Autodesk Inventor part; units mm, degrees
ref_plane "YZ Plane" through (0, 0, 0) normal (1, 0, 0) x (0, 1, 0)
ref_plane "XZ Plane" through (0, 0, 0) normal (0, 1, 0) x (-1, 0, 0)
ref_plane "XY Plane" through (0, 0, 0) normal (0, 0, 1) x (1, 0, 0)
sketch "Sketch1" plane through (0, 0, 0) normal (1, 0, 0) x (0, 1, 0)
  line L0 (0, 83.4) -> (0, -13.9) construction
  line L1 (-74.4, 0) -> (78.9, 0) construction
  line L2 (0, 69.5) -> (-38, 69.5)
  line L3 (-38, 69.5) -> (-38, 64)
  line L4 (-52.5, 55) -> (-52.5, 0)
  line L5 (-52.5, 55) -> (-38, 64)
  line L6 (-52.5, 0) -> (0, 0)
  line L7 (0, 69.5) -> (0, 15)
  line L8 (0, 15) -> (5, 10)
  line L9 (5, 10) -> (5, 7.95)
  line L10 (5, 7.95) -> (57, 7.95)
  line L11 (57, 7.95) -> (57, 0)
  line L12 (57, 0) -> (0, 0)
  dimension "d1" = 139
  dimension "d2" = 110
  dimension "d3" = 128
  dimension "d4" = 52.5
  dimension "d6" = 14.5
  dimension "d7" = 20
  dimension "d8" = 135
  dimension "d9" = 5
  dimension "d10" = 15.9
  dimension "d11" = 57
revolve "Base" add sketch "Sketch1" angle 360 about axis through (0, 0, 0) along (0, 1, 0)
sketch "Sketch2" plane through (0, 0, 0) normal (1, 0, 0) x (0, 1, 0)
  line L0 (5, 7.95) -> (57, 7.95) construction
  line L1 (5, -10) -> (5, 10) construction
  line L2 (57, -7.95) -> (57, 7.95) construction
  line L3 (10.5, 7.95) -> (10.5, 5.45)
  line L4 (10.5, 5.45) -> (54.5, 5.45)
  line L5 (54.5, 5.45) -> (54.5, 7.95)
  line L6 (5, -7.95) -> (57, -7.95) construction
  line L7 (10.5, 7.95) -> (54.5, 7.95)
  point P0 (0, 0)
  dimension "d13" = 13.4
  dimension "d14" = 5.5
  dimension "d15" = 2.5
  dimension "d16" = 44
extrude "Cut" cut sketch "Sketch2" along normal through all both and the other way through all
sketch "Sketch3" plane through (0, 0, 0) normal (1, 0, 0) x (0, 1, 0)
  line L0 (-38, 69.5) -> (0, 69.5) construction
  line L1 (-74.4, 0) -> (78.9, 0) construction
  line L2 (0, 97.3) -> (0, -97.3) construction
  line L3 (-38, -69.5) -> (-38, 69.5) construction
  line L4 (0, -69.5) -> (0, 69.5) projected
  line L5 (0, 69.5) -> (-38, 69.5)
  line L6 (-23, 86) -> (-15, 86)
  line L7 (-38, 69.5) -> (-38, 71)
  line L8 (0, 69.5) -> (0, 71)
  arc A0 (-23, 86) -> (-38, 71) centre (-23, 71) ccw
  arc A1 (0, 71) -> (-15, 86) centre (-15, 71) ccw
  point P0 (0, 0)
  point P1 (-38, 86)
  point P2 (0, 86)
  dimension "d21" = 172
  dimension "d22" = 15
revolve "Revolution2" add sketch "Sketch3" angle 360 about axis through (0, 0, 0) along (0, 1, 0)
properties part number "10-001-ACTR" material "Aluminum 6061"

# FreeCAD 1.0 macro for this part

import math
import FreeCAD as App
import Part
import Sketcher

V = App.Vector
Q = App.Units.Quantity

doc = App.newDocument("Part")
params = doc.addObject("Spreadsheet::Sheet", "Params")
for row, (alias, value) in enumerate([
    ("sketch1_height", "55 mm"),
    ("sketch1_height2", "54.5 mm"),
    ("sketch1_height3", "5.5 mm"),
    ("sketch1_height4", "7.95 mm"),
    ("revolution_angle", "360 deg"),
    ("sketch2_width", "44 mm"),
    ("sketch2_height", "2.5 mm"),
    ("sketch3_radius", "15 mm"),
    ("sketch3_width", "38 mm"),
    ("sketch3_height", "1.5 mm"),
    ("revolution2_angle", "360 deg"),
], start=1):
    params.set(f"A{row}", alias)
    params.set(f"B{row}", "=" + value)
    params.setAlias(f"B{row}", alias)

body = doc.addObject("PartDesign::Body", "Body")

# Sketch on YZ plane
sketch1 = body.newObject("Sketcher::SketchObject", "Sketch")
sketch1.AttachmentSupport = (doc.getObject("YZ_Plane"), [""])
sketch1.MapMode = "FlatFace"
sketch1.addGeometry([
    Part.LineSegment(V(0, 15, 0), V(0, 69.5, 0)),  # 0
    Part.LineSegment(V(0, 69.5, 0), V(-38, 69.5, 0)),  # 1
    Part.LineSegment(V(-38, 69.5, 0), V(-38, 64, 0)),  # 2
    Part.LineSegment(V(-38, 64, 0), V(-52.5, 55, 0)),  # 3
    Part.LineSegment(V(-52.5, 55, 0), V(-52.5, 0, 0)),  # 4
    Part.LineSegment(V(-52.5, 0, 0), V(57, 0, 0)),  # 5
    Part.LineSegment(V(57, 0, 0), V(57, 8, 0)),  # 6
    Part.LineSegment(V(57, 8, 0), V(5, 8, 0)),  # 7
    Part.LineSegment(V(5, 8, 0), V(5, 10, 0)),  # 8
    Part.LineSegment(V(5, 10, 0), V(0, 15, 0)),  # 9
], False)
sketch1.addConstraint([
    Sketcher.Constraint("Coincident", 0, 2, 1, 1),
    Sketcher.Constraint("Coincident", 1, 2, 2, 1),
    Sketcher.Constraint("Coincident", 2, 2, 3, 1),
    Sketcher.Constraint("Coincident", 3, 2, 4, 1),
    Sketcher.Constraint("Coincident", 4, 2, 5, 1),
    Sketcher.Constraint("Coincident", 5, 2, 6, 1),
    Sketcher.Constraint("Coincident", 6, 2, 7, 1),
    Sketcher.Constraint("Coincident", 7, 2, 8, 1),
    Sketcher.Constraint("Coincident", 8, 2, 9, 1),
    Sketcher.Constraint("Coincident", 9, 2, 0, 1),
    Sketcher.Constraint("Vertical", 0),
    Sketcher.Constraint("Horizontal", 1),
    Sketcher.Constraint("Vertical", 2),
    Sketcher.Constraint("Vertical", 4),
    Sketcher.Constraint("Horizontal", 5),
    Sketcher.Constraint("Vertical", 6),
    Sketcher.Constraint("Horizontal", 7),
    Sketcher.Constraint("Vertical", 8),
    Sketcher.Constraint("PointOnObject", 0, 2, -2),
    Sketcher.Constraint("PointOnObject", 4, 2, -1),
    Sketcher.Constraint("Angle", 9, Q("135 deg")),
    Sketcher.Constraint("DistanceX", -1, 1, 5, 2, 57.0),
    Sketcher.Constraint("DistanceX", -1, 1, 7, 2, 5.0),
    Sketcher.Constraint("DistanceX", 3, 2, -1, 1, 52.5),
    Sketcher.Constraint("DistanceX", 3, 2, 2, 2, 14.5),
    Sketcher.Constraint("DistanceY", 3, 2, 1, 2, 14.5),
    Sketcher.Constraint("DistanceY", 4, 2, 4, 1, 55.0),
    Sketcher.Constraint("DistanceY", 0, 1, 0, 2, 54.5),
    Sketcher.Constraint("DistanceY", 2, 2, 2, 1, 5.5),
    Sketcher.Constraint("DistanceY", 6, 1, 6, 2, 7.95),
])
sketch1.setExpression("Constraints[26]", "Params.sketch1_height")
sketch1.setExpression("Constraints[27]", "Params.sketch1_height2")
sketch1.setExpression("Constraints[28]", "Params.sketch1_height3")
sketch1.setExpression("Constraints[29]", "Params.sketch1_height4")
revolution = body.newObject("PartDesign::Revolution", "Revolution")
revolution.Profile = sketch1
revolution.ReferenceAxis = (sketch1, ["H_Axis"])
revolution.setExpression("Angle", "Params.revolution_angle")

# Sketch on YZ plane
sketch2 = body.newObject("Sketcher::SketchObject", "Sketch001")
sketch2.AttachmentSupport = (doc.getObject("YZ_Plane"), [""])
sketch2.MapMode = "FlatFace"
sketch2.addGeometry([
    Part.LineSegment(V(54.5, 8, 0), V(10.5, 8, 0)),
    Part.LineSegment(V(10.5, 8, 0), V(10.5, 5.5, 0)),
    Part.LineSegment(V(10.5, 5.5, 0), V(54.5, 5.5, 0)),
    Part.LineSegment(V(54.5, 5.5, 0), V(54.5, 8, 0)),
], False)
sketch2.addConstraint([
    Sketcher.Constraint("Coincident", 0, 2, 1, 1),
    Sketcher.Constraint("Coincident", 1, 2, 2, 1),
    Sketcher.Constraint("Coincident", 2, 2, 3, 1),
    Sketcher.Constraint("Coincident", 3, 2, 0, 1),
    Sketcher.Constraint("Horizontal", 0),
    Sketcher.Constraint("Vertical", 1),
    Sketcher.Constraint("Horizontal", 2),
    Sketcher.Constraint("Vertical", 3),
    Sketcher.Constraint("DistanceX", 0, 2, 0, 1, 44.0),
    Sketcher.Constraint("DistanceY", 1, 2, 1, 1, 2.5),
    Sketcher.Constraint("DistanceX", -1, 1, 0, 2, 10.5),
    Sketcher.Constraint("DistanceY", -1, 1, 0, 2, 7.95),
])
sketch2.setExpression("Constraints[8]", "Params.sketch2_width")
sketch2.setExpression("Constraints[9]", "Params.sketch2_height")
pocket1 = body.newObject("PartDesign::Pocket", "Pocket")
pocket1.Profile = sketch2
pocket1.Type = "ThroughAll"
pocket1.Midplane = True

# Sketch on YZ plane
sketch3 = body.newObject("Sketcher::SketchObject", "Sketch002")
sketch3.AttachmentSupport = (doc.getObject("YZ_Plane"), [""])
sketch3.MapMode = "FlatFace"
sketch3.addGeometry([
    Part.LineSegment(V(-38, 69.5, 0), V(0, 69.5, 0)),  # 0
    Part.LineSegment(V(0, 69.5, 0), V(0, 71, 0)),  # 1
    Part.ArcOfCircle(Part.Circle(V(-15, 71, 0), V(0, 0, 1), 15), math.radians(0), math.radians(90)),  # 2
    Part.LineSegment(V(-15, 86, 0), V(-23, 86, 0)),  # 3
    Part.ArcOfCircle(Part.Circle(V(-23, 71, 0), V(0, 0, 1), 15), math.radians(90), math.radians(180)),  # 4
    Part.LineSegment(V(-38, 71, 0), V(-38, 69.5, 0)),  # 5
], False)
sketch3.addConstraint([
    Sketcher.Constraint("Coincident", 0, 2, 1, 1),
    Sketcher.Constraint("Tangent", 1, 2, 2, 1),
    Sketcher.Constraint("Tangent", 2, 2, 3, 1),
    Sketcher.Constraint("Tangent", 3, 2, 4, 1),
    Sketcher.Constraint("Tangent", 4, 2, 5, 1),
    Sketcher.Constraint("Coincident", 5, 2, 0, 1),
    Sketcher.Constraint("Horizontal", 0),
    Sketcher.Constraint("Vertical", 1),
    Sketcher.Constraint("Horizontal", 3),
    Sketcher.Constraint("Vertical", 5),
    Sketcher.Constraint("Equal", 2, 4),
    Sketcher.Constraint("PointOnObject", 0, 2, -2),
    Sketcher.Constraint("Radius", 2, 15.0),
    Sketcher.Constraint("DistanceX", 0, 1, 0, 2, 38.0),
    Sketcher.Constraint("DistanceY", 1, 1, 1, 2, 1.5),
    Sketcher.Constraint("DistanceY", -1, 1, 2, 3, 71.0),
])
sketch3.setExpression("Constraints[12]", "Params.sketch3_radius")
sketch3.setExpression("Constraints[13]", "Params.sketch3_width")
sketch3.setExpression("Constraints[14]", "Params.sketch3_height")
revolution2 = body.newObject("PartDesign::Revolution", "Revolution001")
revolution2.Profile = sketch3
revolution2.ReferenceAxis = (sketch3, ["H_Axis"])
revolution2.setExpression("Angle", "Params.revolution2_angle")

doc.recompute()
